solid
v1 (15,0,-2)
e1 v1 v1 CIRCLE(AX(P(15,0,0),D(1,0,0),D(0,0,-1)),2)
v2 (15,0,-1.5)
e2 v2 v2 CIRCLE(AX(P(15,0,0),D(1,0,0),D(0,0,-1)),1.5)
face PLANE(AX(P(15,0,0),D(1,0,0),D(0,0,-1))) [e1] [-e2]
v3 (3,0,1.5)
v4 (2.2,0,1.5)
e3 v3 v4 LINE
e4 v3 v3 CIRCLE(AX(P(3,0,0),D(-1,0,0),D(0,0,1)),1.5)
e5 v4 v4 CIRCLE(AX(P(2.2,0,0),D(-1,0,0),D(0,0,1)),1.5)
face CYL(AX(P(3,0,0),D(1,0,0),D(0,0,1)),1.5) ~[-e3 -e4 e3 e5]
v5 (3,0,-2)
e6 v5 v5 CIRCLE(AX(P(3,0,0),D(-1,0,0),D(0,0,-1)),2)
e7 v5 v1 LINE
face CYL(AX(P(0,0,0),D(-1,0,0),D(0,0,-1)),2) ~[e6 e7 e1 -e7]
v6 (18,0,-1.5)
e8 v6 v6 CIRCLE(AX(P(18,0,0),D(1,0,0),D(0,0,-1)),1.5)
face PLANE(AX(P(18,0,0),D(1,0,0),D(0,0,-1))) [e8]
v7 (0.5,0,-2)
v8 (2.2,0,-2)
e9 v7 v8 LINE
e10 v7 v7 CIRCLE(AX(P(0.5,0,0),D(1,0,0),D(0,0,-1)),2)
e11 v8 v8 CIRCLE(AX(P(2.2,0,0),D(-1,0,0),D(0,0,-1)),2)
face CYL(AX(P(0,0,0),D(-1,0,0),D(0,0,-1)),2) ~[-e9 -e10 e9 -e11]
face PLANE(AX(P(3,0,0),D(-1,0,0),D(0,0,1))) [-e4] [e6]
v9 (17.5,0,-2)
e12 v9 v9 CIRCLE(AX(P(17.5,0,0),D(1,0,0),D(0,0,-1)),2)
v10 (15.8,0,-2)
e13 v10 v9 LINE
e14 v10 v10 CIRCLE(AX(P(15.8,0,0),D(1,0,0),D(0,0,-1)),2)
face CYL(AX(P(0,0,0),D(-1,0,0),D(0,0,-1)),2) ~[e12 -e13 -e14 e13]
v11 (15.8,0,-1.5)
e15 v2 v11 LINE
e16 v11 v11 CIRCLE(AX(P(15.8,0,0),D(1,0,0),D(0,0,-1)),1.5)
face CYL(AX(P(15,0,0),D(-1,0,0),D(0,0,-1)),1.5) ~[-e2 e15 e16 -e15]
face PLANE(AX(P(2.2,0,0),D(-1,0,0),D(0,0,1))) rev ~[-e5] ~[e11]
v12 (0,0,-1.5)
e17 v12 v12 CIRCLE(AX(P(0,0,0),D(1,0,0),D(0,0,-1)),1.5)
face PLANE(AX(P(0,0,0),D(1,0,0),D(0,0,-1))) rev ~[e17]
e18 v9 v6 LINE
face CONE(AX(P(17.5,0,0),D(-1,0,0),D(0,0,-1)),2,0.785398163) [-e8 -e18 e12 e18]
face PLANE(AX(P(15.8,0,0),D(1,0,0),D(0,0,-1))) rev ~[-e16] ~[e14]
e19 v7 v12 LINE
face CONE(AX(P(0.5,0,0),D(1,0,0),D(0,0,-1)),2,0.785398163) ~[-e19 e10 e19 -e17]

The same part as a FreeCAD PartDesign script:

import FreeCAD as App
import Part
import Sketcher
from FreeCAD import Vector
Q = App.Units.Quantity


def edges_at(feature, points):
    """Names of the edges that pass closest to the given points."""
    edges = feature.Shape.Edges
    near = lambda p: min(range(len(edges)), key=lambda i: edges[i].distToShape(Part.Vertex(*p))[0])
    return sorted({f"Edge{near(p) + 1}" for p in points})

doc = App.newDocument("Part")
body = doc.addObject("PartDesign::Body", "Body")

sketch1 = doc.addObject("Sketcher::SketchObject", "Sketch")
body.addObject(sketch1)
sketch1.AttachmentSupport = (doc.YZ_Plane, [""])
sketch1.MapMode = "FlatFace"
sketch1.addGeometry(Part.Circle(Vector(0, 0, 0), Vector(0, 0, 1), 2), False)
sketch1.addConstraint([
    Sketcher.Constraint("Coincident", 0, 3, -1, 1),
    Sketcher.Constraint("Diameter", 0, Q("4 mm")),
])
pad1 = doc.addObject("PartDesign::Pad", "Pad")
body.addObject(pad1)
pad1.Profile = sketch1
pad1.Length = 18
doc.recompute()

chamfer = doc.addObject("PartDesign::Chamfer", "Chamfer")
body.addObject(chamfer)
chamfer.Base = (pad1, edges_at(pad1, [(0, 0, 2), (18, 0, 2)]))
chamfer.Size = 0.5

sketch2 = doc.addObject("Sketcher::SketchObject", "Sketch001")
body.addObject(sketch2)
sketch2.AttachmentSupport = (doc.YZ_Plane, [""])
sketch2.MapMode = "FlatFace"
sketch2.AttachmentOffset = App.Placement(Vector(0, 0, 15), App.Rotation())
sketch2.addGeometry([
    Part.Circle(Vector(0, 0, 0), Vector(0, 0, 1), 2),
    Part.Circle(Vector(0, 0, 0), Vector(0, 0, 1), 1.5),
], False)
sketch2.addConstraint([
    Sketcher.Constraint("Coincident", 0, 3, -1, 1),
    Sketcher.Constraint("Coincident", 1, 3, -1, 1),
    Sketcher.Constraint("Diameter", 0, Q("4 mm")),
    Sketcher.Constraint("Diameter", 1, Q("3 mm")),
])
pocket1 = doc.addObject("PartDesign::Pocket", "Pocket")
body.addObject(pocket1)
pocket1.Profile = sketch2
pocket1.Length = 0.8
pocket1.Reversed = True

sketch3 = doc.addObject("Sketcher::SketchObject", "Sketch002")
body.addObject(sketch3)
sketch3.AttachmentSupport = (doc.YZ_Plane, [""])
sketch3.MapMode = "FlatFace"
sketch3.AttachmentOffset = App.Placement(Vector(0, 0, 3), App.Rotation())
sketch3.addGeometry([
    Part.Circle(Vector(0, 0, 0), Vector(0, 0, 1), 2),
    Part.Circle(Vector(0, 0, 0), Vector(0, 0, 1), 1.5),
], False)
sketch3.addConstraint([
    Sketcher.Constraint("Coincident", 0, 3, -1, 1),
    Sketcher.Constraint("Coincident", 1, 3, -1, 1),
    Sketcher.Constraint("Diameter", 0, Q("4 mm")),
    Sketcher.Constraint("Diameter", 1, Q("3 mm")),
])
pocket2 = doc.addObject("PartDesign::Pocket", "Pocket001")
body.addObject(pocket2)
pocket2.Profile = sketch3
pocket2.Length = 0.8

doc.recompute()
